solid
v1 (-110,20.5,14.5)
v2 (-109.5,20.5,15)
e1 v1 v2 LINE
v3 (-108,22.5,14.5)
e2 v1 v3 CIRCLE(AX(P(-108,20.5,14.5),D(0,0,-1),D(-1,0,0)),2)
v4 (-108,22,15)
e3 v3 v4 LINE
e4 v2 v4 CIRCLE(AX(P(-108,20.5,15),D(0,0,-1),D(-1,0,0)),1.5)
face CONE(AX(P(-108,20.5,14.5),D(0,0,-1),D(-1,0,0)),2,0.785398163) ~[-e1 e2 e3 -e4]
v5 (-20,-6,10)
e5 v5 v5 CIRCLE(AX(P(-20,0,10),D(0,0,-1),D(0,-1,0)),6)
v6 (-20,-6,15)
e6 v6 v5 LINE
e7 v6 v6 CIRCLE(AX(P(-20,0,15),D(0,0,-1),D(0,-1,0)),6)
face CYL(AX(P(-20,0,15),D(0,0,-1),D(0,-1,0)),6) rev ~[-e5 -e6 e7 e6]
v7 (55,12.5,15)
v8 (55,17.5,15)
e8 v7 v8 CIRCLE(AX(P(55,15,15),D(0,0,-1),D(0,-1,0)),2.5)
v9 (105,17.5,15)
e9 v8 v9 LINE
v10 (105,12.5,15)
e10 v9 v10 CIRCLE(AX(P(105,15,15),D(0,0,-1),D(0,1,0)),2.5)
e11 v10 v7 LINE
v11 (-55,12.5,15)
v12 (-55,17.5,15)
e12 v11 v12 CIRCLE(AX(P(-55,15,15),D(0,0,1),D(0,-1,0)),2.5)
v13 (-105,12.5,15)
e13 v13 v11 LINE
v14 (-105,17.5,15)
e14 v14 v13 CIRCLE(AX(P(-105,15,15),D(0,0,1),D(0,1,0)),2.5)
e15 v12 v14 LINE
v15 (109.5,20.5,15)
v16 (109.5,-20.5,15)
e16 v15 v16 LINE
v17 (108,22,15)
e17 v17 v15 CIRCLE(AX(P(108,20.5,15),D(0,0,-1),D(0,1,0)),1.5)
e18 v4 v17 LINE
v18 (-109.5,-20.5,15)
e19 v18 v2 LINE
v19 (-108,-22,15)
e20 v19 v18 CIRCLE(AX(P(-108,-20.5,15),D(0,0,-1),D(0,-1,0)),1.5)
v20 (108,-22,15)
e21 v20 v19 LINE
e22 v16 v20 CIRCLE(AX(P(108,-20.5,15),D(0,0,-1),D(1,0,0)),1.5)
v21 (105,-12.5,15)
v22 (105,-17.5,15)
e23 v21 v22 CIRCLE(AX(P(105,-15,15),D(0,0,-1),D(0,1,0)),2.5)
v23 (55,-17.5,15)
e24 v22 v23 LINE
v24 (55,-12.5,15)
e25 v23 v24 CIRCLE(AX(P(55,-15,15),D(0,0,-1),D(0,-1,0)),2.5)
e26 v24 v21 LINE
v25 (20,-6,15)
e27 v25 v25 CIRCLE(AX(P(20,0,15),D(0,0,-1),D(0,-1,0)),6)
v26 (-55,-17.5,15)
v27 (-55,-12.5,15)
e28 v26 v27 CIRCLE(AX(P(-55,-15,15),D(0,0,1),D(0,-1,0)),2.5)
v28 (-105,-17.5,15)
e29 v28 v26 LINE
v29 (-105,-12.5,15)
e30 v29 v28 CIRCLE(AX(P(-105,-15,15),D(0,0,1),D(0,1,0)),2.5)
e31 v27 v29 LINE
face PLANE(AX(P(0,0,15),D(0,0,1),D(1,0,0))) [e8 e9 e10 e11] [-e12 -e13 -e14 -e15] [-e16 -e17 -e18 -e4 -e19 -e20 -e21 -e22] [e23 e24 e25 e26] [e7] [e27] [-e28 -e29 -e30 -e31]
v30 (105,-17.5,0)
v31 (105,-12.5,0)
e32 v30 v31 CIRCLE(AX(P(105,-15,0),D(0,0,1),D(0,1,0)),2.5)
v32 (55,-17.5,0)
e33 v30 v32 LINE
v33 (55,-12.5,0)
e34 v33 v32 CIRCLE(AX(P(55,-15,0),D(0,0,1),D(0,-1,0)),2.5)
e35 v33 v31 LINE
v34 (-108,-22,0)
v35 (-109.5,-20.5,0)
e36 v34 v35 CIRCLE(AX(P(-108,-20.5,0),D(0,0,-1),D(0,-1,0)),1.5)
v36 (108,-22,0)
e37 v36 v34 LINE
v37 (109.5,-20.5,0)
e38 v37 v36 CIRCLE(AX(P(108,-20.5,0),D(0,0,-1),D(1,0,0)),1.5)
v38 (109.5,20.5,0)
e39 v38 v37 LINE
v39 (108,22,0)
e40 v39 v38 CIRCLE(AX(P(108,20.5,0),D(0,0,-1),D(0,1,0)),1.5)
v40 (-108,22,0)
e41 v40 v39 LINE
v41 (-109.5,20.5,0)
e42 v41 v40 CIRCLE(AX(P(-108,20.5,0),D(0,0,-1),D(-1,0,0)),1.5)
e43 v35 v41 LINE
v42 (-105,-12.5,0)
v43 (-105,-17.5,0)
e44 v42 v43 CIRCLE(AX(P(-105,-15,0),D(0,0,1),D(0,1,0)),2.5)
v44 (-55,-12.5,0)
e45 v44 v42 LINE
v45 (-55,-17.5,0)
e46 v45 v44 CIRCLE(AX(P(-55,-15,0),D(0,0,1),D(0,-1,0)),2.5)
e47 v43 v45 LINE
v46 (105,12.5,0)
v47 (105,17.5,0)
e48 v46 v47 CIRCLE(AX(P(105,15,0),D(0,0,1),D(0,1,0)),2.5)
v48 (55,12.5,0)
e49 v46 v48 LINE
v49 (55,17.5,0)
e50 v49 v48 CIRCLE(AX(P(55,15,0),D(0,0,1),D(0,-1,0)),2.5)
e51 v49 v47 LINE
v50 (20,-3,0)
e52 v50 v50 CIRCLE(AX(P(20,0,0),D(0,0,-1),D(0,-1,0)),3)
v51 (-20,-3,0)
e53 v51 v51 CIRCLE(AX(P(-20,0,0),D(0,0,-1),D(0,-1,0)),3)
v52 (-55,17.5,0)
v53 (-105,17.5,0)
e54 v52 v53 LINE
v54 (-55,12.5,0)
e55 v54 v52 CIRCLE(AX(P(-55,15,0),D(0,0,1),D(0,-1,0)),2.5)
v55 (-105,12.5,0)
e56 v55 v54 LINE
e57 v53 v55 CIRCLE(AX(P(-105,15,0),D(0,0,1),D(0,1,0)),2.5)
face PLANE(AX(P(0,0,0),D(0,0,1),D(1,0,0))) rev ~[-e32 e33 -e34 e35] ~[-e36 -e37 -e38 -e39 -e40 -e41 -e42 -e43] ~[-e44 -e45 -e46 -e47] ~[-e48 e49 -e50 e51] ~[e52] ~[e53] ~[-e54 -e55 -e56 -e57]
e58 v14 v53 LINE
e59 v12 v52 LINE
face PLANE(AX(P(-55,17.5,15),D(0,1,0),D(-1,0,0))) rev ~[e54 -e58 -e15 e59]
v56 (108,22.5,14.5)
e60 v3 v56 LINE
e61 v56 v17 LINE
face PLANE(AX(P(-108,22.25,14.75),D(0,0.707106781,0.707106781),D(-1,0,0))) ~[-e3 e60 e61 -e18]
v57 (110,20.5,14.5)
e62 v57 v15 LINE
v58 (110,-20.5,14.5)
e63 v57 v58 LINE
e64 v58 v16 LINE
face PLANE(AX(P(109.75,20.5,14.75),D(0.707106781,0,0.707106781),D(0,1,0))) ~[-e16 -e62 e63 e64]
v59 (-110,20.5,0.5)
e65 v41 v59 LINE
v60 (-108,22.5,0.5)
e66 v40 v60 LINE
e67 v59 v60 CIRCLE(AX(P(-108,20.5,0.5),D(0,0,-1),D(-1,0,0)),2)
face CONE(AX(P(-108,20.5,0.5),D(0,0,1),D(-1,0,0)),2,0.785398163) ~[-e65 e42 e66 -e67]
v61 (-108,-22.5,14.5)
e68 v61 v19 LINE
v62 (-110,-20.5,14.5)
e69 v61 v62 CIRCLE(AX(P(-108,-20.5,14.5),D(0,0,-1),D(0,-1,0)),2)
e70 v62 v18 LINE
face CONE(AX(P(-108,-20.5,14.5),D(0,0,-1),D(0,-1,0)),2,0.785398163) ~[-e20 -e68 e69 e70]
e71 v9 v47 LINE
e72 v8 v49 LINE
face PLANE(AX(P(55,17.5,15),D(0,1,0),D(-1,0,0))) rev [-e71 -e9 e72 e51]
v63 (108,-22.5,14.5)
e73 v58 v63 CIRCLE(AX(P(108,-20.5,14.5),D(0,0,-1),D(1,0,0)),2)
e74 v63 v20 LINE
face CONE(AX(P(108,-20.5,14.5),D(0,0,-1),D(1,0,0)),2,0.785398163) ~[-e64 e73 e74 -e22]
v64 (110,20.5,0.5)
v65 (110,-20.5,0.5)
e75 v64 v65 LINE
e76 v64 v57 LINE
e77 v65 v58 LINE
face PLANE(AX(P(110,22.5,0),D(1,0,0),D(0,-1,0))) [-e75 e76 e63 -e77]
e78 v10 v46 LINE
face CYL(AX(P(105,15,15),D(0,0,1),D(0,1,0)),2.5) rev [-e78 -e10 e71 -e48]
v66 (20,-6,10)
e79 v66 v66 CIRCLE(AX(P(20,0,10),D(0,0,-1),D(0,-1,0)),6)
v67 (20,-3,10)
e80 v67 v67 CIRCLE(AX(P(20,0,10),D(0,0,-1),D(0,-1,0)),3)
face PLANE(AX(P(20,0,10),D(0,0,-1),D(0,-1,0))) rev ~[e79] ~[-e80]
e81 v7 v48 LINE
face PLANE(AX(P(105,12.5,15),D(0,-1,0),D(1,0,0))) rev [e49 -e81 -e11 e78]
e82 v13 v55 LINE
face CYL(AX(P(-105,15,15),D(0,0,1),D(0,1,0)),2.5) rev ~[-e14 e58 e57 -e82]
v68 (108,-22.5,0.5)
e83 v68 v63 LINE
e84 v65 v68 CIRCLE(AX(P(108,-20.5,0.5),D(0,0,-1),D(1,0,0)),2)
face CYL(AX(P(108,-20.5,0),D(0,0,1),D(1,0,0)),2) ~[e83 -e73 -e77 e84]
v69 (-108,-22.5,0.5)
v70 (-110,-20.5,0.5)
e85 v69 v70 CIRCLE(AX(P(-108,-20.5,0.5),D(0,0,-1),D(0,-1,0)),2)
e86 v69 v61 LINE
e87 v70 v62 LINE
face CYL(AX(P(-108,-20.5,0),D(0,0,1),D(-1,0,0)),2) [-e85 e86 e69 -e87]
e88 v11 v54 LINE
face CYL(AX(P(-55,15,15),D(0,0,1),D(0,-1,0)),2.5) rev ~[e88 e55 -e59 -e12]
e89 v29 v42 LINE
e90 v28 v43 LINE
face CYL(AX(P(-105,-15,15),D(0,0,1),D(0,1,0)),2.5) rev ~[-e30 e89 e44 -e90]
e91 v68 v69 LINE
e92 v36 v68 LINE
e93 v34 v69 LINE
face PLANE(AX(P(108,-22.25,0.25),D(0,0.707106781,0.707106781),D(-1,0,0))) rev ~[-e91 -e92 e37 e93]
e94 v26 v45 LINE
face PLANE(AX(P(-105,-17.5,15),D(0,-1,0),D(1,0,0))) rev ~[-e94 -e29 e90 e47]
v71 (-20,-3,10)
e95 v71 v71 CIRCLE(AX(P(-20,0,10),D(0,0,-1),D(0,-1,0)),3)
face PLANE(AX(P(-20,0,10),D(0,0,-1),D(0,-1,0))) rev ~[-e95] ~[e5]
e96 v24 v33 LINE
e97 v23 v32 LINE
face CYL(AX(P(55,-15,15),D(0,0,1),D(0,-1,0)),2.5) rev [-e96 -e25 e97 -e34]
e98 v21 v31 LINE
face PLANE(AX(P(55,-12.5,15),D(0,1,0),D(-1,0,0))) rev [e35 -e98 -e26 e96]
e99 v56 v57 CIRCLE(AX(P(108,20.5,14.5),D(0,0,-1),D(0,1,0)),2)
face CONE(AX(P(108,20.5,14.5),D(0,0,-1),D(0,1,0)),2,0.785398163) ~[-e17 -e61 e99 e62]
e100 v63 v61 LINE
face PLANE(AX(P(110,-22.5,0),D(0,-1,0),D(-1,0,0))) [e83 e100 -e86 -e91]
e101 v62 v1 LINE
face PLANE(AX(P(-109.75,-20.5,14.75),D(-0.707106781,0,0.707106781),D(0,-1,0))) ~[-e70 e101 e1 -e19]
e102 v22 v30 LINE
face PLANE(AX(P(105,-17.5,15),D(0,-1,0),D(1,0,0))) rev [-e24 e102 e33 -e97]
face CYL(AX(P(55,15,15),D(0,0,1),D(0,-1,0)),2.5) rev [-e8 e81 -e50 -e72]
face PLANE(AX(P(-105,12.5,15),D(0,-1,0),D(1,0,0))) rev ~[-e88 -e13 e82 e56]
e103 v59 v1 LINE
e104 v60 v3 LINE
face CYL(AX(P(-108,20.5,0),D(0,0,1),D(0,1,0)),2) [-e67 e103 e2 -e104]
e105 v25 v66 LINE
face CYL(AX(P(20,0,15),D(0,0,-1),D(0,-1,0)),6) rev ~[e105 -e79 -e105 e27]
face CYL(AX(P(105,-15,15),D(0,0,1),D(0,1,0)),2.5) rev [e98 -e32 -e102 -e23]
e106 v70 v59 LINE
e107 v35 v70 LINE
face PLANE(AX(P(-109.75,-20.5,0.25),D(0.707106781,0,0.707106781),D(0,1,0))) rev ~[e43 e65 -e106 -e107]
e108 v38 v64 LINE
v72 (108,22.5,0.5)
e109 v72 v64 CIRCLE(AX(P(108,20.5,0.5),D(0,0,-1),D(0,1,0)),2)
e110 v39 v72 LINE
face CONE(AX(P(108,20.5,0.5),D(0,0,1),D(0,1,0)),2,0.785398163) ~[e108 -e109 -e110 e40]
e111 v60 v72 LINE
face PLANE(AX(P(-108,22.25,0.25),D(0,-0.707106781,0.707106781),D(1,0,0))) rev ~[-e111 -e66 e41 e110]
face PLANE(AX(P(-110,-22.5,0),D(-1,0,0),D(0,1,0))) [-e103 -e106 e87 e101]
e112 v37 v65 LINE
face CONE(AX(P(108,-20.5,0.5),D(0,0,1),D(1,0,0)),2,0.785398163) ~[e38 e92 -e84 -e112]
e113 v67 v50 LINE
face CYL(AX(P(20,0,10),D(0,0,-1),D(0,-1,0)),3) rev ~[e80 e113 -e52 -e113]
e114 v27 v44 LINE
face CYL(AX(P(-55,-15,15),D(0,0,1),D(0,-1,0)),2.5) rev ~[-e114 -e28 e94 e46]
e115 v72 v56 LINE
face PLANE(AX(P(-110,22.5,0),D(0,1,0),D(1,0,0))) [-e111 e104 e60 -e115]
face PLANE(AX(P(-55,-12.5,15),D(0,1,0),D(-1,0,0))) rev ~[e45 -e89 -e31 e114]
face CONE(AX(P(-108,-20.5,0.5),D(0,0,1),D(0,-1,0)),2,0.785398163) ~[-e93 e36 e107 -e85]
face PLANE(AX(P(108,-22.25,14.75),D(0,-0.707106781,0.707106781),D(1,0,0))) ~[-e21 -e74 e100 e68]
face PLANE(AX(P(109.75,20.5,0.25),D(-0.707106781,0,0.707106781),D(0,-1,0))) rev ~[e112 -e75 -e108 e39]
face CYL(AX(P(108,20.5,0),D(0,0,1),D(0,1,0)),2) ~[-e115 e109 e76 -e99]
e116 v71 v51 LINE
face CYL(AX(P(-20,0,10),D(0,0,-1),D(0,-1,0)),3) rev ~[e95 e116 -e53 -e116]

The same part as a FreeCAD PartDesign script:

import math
import FreeCAD as App
import Part
import Sketcher
from FreeCAD import Vector


def edges_at(feature, points):
    """Names of the edges that pass closest to the given points."""
    edges = feature.Shape.Edges
    near = lambda p: min(range(len(edges)), key=lambda i: edges[i].distToShape(Part.Vertex(*p))[0])
    return sorted({f"Edge{near(p) + 1}" for p in points})


def add_polygon(sketch, points):
    """Adds a closed chain of lines whose ends are joined by coincident constraints."""
    first, n = sketch.GeometryCount, len(points)
    for a, b in zip(points, points[1:] + points[:1]):
        sketch.addGeometry(Part.LineSegment(App.Vector(*a, 0), App.Vector(*b, 0)), False)
    for i in range(n):
        sketch.addConstraint(Sketcher.Constraint("Coincident", first + i, 2, first + (i + 1) % n, 1))

doc = App.newDocument("Part")
body = doc.addObject("PartDesign::Body", "Body")

# Sketch on XY plane
sketch1 = body.newObject("Sketcher::SketchObject", "Sketch")
sketch1.AttachmentSupport = (doc.getObject("XY_Plane"), [""])
sketch1.MapMode = "FlatFace"
add_polygon(sketch1, [(110, 22), (-110, 22), (-110, -22), (110, -22)])  # lines 0-3
sketch1.addConstraint(Sketcher.Constraint("Horizontal", 0))
sketch1.addConstraint(Sketcher.Constraint("Vertical", 1))
sketch1.addConstraint(Sketcher.Constraint("Horizontal", 2))
sketch1.addConstraint(Sketcher.Constraint("Vertical", 3))
sketch1.addConstraint(Sketcher.Constraint("Symmetric", 0, 2, 2, 2, -1, 1))
sketch1.addConstraint(Sketcher.Constraint("DistanceX", 0, 2, 0, 1, 220.0))
sketch1.addConstraint(Sketcher.Constraint("DistanceY", 1, 2, 1, 1, 45.0))
pad1 = body.newObject("PartDesign::Pad", "Pad")
pad1.Profile = sketch1
pad1.Length = 15

# Sketch on XY plane
sketch2 = body.newObject("Sketcher::SketchObject", "Sketch001")
sketch2.AttachmentSupport = (doc.getObject("XY_Plane"), [""])
sketch2.MapMode = "FlatFace"
sketch2.AttachmentOffset = App.Placement(Vector(0, 0, 15), App.Rotation())
sketch2.addGeometry(Part.ArcOfCircle(Part.Circle(Vector(-105, 15, 0), Vector(0, 0, 1), 2.5), math.radians(90), math.radians(270)), False)
sketch2.addGeometry(Part.LineSegment(Vector(-105, 12.5, 0), Vector(-55, 12.5, 0)), False)
sketch2.addGeometry(Part.ArcOfCircle(Part.Circle(Vector(-55, 15, 0), Vector(0, 0, 1), 2.5), math.radians(-90), math.radians(90)), False)
sketch2.addGeometry(Part.LineSegment(Vector(-55, 17.5, 0), Vector(-105, 17.5, 0)), False)
sketch2.addGeometry(Part.ArcOfCircle(Part.Circle(Vector(-105, -15, 0), Vector(0, 0, 1), 2.5), math.radians(90), math.radians(270)), False)
sketch2.addGeometry(Part.LineSegment(Vector(-105, -17.5, 0), Vector(-55, -17.5, 0)), False)
sketch2.addGeometry(Part.ArcOfCircle(Part.Circle(Vector(-55, -15, 0), Vector(0, 0, 1), 2.5), math.radians(-90), math.radians(90)), False)
sketch2.addGeometry(Part.LineSegment(Vector(-55, -12.5, 0), Vector(-105, -12.5, 0)), False)
sketch2.addConstraint(Sketcher.Constraint("Tangent", 0, 2, 1, 1))
sketch2.addConstraint(Sketcher.Constraint("Tangent", 1, 2, 2, 1))
sketch2.addConstraint(Sketcher.Constraint("Tangent", 2, 2, 3, 1))
sketch2.addConstraint(Sketcher.Constraint("Tangent", 3, 2, 0, 1))
sketch2.addConstraint(Sketcher.Constraint("Tangent", 4, 2, 5, 1))
sketch2.addConstraint(Sketcher.Constraint("Tangent", 5, 2, 6, 1))
sketch2.addConstraint(Sketcher.Constraint("Tangent", 6, 2, 7, 1))
sketch2.addConstraint(Sketcher.Constraint("Tangent", 7, 2, 4, 1))
sketch2.addConstraint(Sketcher.Constraint("Horizontal", 1))
sketch2.addConstraint(Sketcher.Constraint("Horizontal", 3))
sketch2.addConstraint(Sketcher.Constraint("Horizontal", 5))
sketch2.addConstraint(Sketcher.Constraint("Horizontal", 7))
sketch2.addConstraint(Sketcher.Constraint("Equal", 2, 4))
sketch2.addConstraint(Sketcher.Constraint("Symmetric", 0, 3, 4, 3, -1))
sketch2.addConstraint(Sketcher.Constraint("Vertical", 2, 3, 6, 3))
sketch2.addConstraint(Sketcher.Constraint("Radius", 0, 2.5))
sketch2.addConstraint(Sketcher.Constraint("DistanceX", 1, 1, 1, 2, 50.0))
sketch2.addConstraint(Sketcher.Constraint("DistanceY", 4, 3, 0, 3, 30.0))
sketch2.addConstraint(Sketcher.Constraint("DistanceX", 0, 3, -1, 1, 105.0))
pocket1 = body.newObject("PartDesign::Pocket", "Pocket")
pocket1.Profile = sketch2
pocket1.Type = "ThroughAll"
doc.recompute()

mirrored = body.newObject("PartDesign::Mirrored", "Mirrored")
mirrored.Originals = [pocket1]
mirrored.MirrorPlane = (doc.getObject("YZ_Plane"), [""])
body.Tip = mirrored
doc.recompute()

fillet = body.newObject("PartDesign::Fillet", "Fillet")
fillet.Base = (mirrored, edges_at(mirrored, [
    (-110, -22.5, 7.5),
    (-110, 22.5, 7.5),
    (110, 22.5, 7.5),
    (110, -22.5, 7.5),
]))
fillet.Radius = 2
doc.recompute()

chamfer = body.newObject("PartDesign::Chamfer", "Chamfer")
chamfer.Base = (fillet, edges_at(fillet, [
    (0, 22.5, 15),
    (-109.414, 21.914, 15),
    (-110, 0, 15),
    (-109.414, -21.914, 15),
    (0, -22.5, 15),
    (109.414, -21.914, 15),
    (110, 0, 15),
    (109.414, 21.914, 15),
    (0, -22.5, 0),
    (109.414, -21.914, 0),
    (110, 0, 0),
    (109.414, 21.914, 0),
    (0, 22.5, 0),
    (-109.414, 21.914, 0),
    (-110, 0, 0),
    (-109.414, -21.914, 0),
]))
chamfer.Size = 0.5

# Sketch on XY plane
sketch3 = body.newObject("Sketcher::SketchObject", "Sketch002")
sketch3.AttachmentSupport = (doc.getObject("XY_Plane"), [""])
sketch3.MapMode = "FlatFace"
sketch3.AttachmentOffset = App.Placement(Vector(0, 0, 15), App.Rotation())
sketch3.addGeometry(Part.Circle(Vector(20, 0, 0), Vector(0, 0, 1), 3), False)
sketch3.addGeometry(Part.Circle(Vector(-20, 0, 0), Vector(0, 0, 1), 3), False)
sketch3.addConstraint(Sketcher.Constraint("Equal", 0, 1))
sketch3.addConstraint(Sketcher.Constraint("Symmetric", 0, 3, 1, 3, -1, 1))
sketch3.addConstraint(Sketcher.Constraint("PointOnObject", 0, 3, -1))
sketch3.addConstraint(Sketcher.Constraint("Diameter", 0, 6.0))
sketch3.addConstraint(Sketcher.Constraint("DistanceX", -1, 1, 0, 3, 20.0))
doc.recompute()
hole = body.newObject("PartDesign::Hole", "Hole")
hole.Profile = sketch3
hole.ThreadType = "None"
hole.Diameter = 6
hole.DepthType = "ThroughAll"
hole.HoleCutType = "Counterbore"
hole.HoleCutDiameter = 12
hole.HoleCutDepth = 5

doc.recompute()
